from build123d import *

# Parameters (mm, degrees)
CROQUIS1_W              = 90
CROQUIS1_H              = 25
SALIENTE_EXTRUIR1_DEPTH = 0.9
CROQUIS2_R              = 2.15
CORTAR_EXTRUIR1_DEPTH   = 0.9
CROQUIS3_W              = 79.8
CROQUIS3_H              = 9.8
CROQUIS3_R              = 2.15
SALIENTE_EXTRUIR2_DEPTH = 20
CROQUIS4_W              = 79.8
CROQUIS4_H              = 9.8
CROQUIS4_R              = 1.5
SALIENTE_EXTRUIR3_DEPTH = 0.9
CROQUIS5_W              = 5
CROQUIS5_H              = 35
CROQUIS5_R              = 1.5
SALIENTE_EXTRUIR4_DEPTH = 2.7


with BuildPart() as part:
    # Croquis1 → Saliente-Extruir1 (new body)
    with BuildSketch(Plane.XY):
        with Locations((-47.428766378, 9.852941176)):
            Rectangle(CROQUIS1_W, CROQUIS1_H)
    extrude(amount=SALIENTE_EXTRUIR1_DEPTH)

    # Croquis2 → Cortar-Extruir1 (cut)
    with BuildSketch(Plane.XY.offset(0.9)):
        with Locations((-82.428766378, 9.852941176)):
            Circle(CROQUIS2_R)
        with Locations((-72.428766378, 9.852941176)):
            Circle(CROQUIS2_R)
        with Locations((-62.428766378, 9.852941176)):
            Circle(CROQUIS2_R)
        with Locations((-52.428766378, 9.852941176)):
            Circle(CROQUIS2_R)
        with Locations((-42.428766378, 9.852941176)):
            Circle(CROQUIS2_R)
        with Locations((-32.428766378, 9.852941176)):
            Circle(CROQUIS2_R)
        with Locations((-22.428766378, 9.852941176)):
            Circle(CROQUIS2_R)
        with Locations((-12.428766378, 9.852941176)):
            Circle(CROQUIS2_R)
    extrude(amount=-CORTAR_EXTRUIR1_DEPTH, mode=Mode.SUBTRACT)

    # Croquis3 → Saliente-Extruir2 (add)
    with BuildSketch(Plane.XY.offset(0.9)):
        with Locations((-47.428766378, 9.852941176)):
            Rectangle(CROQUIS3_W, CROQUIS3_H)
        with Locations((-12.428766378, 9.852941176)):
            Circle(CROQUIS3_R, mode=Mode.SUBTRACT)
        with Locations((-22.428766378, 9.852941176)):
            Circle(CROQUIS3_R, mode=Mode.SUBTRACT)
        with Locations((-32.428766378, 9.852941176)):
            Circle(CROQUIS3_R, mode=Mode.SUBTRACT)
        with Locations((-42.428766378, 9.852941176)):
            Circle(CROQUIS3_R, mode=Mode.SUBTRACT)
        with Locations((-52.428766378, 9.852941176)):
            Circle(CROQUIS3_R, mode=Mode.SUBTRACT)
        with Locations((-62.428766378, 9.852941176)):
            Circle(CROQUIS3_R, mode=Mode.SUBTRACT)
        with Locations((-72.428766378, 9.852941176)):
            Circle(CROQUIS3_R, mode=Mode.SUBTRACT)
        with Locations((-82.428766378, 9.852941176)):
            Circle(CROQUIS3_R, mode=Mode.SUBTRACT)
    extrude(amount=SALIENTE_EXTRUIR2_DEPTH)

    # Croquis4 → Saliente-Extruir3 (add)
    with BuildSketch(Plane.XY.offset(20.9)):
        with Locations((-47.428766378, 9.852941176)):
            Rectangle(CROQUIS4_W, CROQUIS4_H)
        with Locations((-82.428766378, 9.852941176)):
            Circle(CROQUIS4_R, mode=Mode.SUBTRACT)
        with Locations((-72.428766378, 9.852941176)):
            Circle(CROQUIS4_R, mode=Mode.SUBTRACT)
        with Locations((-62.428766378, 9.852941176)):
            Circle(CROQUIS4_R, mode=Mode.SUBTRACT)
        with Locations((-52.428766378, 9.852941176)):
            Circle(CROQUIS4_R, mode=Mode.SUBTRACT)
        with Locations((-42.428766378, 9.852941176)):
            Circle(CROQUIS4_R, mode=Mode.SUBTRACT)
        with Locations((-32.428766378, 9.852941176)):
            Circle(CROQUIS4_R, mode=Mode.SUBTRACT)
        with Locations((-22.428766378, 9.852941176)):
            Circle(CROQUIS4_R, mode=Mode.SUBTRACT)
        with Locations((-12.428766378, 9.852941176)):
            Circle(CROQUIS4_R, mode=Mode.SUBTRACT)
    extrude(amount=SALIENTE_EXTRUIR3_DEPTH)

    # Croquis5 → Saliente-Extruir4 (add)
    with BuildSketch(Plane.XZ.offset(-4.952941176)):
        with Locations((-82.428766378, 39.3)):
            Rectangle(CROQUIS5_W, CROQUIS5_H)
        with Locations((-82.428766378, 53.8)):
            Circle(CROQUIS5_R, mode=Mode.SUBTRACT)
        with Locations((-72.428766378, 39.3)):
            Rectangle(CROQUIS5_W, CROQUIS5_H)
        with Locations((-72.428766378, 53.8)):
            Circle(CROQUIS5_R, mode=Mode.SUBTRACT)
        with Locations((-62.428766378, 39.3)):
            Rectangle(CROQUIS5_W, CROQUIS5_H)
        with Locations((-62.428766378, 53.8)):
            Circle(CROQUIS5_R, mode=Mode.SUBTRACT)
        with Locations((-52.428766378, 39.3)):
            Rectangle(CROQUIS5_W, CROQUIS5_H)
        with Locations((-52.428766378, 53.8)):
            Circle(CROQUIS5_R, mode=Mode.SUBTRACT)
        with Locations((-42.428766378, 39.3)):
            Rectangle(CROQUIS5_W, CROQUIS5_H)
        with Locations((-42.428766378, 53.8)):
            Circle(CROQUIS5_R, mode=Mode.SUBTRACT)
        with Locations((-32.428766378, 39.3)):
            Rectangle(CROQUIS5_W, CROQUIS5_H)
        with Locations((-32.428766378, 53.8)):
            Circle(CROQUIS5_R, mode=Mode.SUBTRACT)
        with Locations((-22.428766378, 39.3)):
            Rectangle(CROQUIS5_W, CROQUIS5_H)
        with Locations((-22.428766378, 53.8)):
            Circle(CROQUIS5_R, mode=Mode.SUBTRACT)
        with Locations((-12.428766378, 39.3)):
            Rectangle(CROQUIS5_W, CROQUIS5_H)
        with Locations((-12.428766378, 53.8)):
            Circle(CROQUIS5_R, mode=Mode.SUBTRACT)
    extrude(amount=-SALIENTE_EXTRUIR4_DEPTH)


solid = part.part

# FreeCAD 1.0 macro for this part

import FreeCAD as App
import Part
import Sketcher

V = App.Vector
Q = App.Units.Quantity

doc = App.newDocument("Part")
body = doc.addObject("PartDesign::Body", "Body")

# Sketch on XY plane
sketch1 = body.newObject("Sketcher::SketchObject", "Sketch")
sketch1.AttachmentSupport = (doc.getObject("XY_Plane"), [""])
sketch1.MapMode = "FlatFace"
sketch1.addGeometry([
    Part.LineSegment(V(-92, 22, 0), V(-92, -3, 0)),
    Part.LineSegment(V(-92, -3, 0), V(-2, -3, 0)),
    Part.LineSegment(V(-2, -3, 0), V(-2, 22, 0)),
    Part.LineSegment(V(-2, 22, 0), V(-92, 22, 0)),
], False)
sketch1.addConstraint([
    Sketcher.Constraint("Coincident", 0, 2, 1, 1),
    Sketcher.Constraint("Coincident", 1, 2, 2, 1),
    Sketcher.Constraint("Coincident", 2, 2, 3, 1),
    Sketcher.Constraint("Coincident", 3, 2, 0, 1),
    Sketcher.Constraint("Vertical", 0),
    Sketcher.Constraint("Horizontal", 1),
    Sketcher.Constraint("Vertical", 2),
    Sketcher.Constraint("Horizontal", 3),
    Sketcher.Constraint("DistanceX", 1, 1, 1, 2, Q("90 mm")),
    Sketcher.Constraint("DistanceY", 0, 2, 0, 1, Q("25 mm")),
    Sketcher.Constraint("DistanceY", 0, 2, -1, 1, Q("2.647059 mm")),
    Sketcher.Constraint("DistanceX", 0, 2, -1, 1, Q("92.428766 mm")),
])
pad1 = body.newObject("PartDesign::Pad", "Pad")
pad1.Profile = sketch1
pad1.Length = 0.9

# Sketch on XY plane
sketch2 = body.newObject("Sketcher::SketchObject", "Sketch001")
sketch2.AttachmentSupport = (doc.getObject("XY_Plane"), [""])
sketch2.MapMode = "FlatFace"
sketch2.AttachmentOffset = App.Placement(V(0, 0, 0.9), App.Rotation())
sketch2.addGeometry([
    Part.Circle(V(-82.4, 9.9, 0), V(0, 0, 1), 2.1),  # 0
    Part.Circle(V(-72.4, 9.9, 0), V(0, 0, 1), 2.1),  # 1
    Part.Circle(V(-62.4, 9.9, 0), V(0, 0, 1), 2.1),  # 2
    Part.Circle(V(-52.4, 9.9, 0), V(0, 0, 1), 2.1),  # 3
    Part.Circle(V(-42.4, 9.9, 0), V(0, 0, 1), 2.1),  # 4
    Part.Circle(V(-32.4, 9.9, 0), V(0, 0, 1), 2.1),  # 5
    Part.Circle(V(-22.4, 9.9, 0), V(0, 0, 1), 2.1),  # 6
    Part.Circle(V(-12.4, 9.9, 0), V(0, 0, 1), 2.1),  # 7
], False)
sketch2.addConstraint([
    Sketcher.Constraint("Equal", 0, 1),
    Sketcher.Constraint("Equal", 1, 2),
    Sketcher.Constraint("Equal", 2, 3),
    Sketcher.Constraint("Equal", 3, 4),
    Sketcher.Constraint("Equal", 4, 5),
    Sketcher.Constraint("Equal", 5, 6),
    Sketcher.Constraint("Equal", 6, 7),
    Sketcher.Constraint("Horizontal", 0, 3, 1, 3),
    Sketcher.Constraint("Horizontal", 1, 3, 2, 3),
    Sketcher.Constraint("Horizontal", 2, 3, 3, 3),
    Sketcher.Constraint("Horizontal", 3, 3, 4, 3),
    Sketcher.Constraint("Horizontal", 4, 3, 5, 3),
    Sketcher.Constraint("Horizontal", 5, 3, 6, 3),
    Sketcher.Constraint("Horizontal", 6, 3, 7, 3),
    Sketcher.Constraint("Diameter", 0, Q("4.3 mm")),
    Sketcher.Constraint("DistanceX", 0, 3, 1, 3, Q("10 mm")),
    Sketcher.Constraint("DistanceX", 1, 3, 2, 3, Q("10 mm")),
    Sketcher.Constraint("DistanceX", 2, 3, 3, 3, Q("10 mm")),
    Sketcher.Constraint("DistanceX", 3, 3, 4, 3, Q("10 mm")),
    Sketcher.Constraint("DistanceX", 4, 3, 5, 3, Q("10 mm")),
    Sketcher.Constraint("DistanceX", 5, 3, 6, 3, Q("10 mm")),
    Sketcher.Constraint("DistanceX", 6, 3, 7, 3, Q("10 mm")),
    Sketcher.Constraint("DistanceY", -1, 1, 0, 3, Q("9.852941 mm")),
    Sketcher.Constraint("DistanceX", 0, 3, -1, 1, Q("82.428766 mm")),
])
pocket1 = body.newObject("PartDesign::Pocket", "Pocket")
pocket1.Profile = sketch2
pocket1.Length = 0.9

# Sketch on XY plane
sketch3 = body.newObject("Sketcher::SketchObject", "Sketch002")
sketch3.AttachmentSupport = (doc.getObject("XY_Plane"), [""])
sketch3.MapMode = "FlatFace"
sketch3.AttachmentOffset = App.Placement(V(0, 0, 0.9), App.Rotation())
sketch3.addGeometry([
    Part.LineSegment(V(-87.3, 14.8, 0), V(-87.3, 5, 0)),  # 0
    Part.LineSegment(V(-87.3, 5, 0), V(-7.5, 5, 0)),  # 1
    Part.LineSegment(V(-7.5, 5, 0), V(-7.5, 14.8, 0)),  # 2
    Part.LineSegment(V(-7.5, 14.8, 0), V(-87.3, 14.8, 0)),  # 3
    Part.Circle(V(-82.4, 9.9, 0), V(0, 0, 1), 2.1),  # 4
    Part.Circle(V(-72.4, 9.9, 0), V(0, 0, 1), 2.1),  # 5
    Part.Circle(V(-62.4, 9.9, 0), V(0, 0, 1), 2.1),  # 6
    Part.Circle(V(-52.4, 9.9, 0), V(0, 0, 1), 2.1),  # 7
    Part.Circle(V(-42.4, 9.9, 0), V(0, 0, 1), 2.1),  # 8
    Part.Circle(V(-32.4, 9.9, 0), V(0, 0, 1), 2.1),  # 9
    Part.Circle(V(-22.4, 9.9, 0), V(0, 0, 1), 2.1),  # 10
    Part.Circle(V(-12.4, 9.9, 0), V(0, 0, 1), 2.1),  # 11
], False)
sketch3.addConstraint([
    Sketcher.Constraint("Coincident", 0, 2, 1, 1),
    Sketcher.Constraint("Coincident", 1, 2, 2, 1),
    Sketcher.Constraint("Coincident", 2, 2, 3, 1),
    Sketcher.Constraint("Coincident", 3, 2, 0, 1),
    Sketcher.Constraint("Vertical", 0),
    Sketcher.Constraint("Horizontal", 1),
    Sketcher.Constraint("Vertical", 2),
    Sketcher.Constraint("Horizontal", 3),
    Sketcher.Constraint("Equal", 4, 5),
    Sketcher.Constraint("Equal", 5, 6),
    Sketcher.Constraint("Equal", 6, 7),
    Sketcher.Constraint("Equal", 7, 8),
    Sketcher.Constraint("Equal", 8, 9),
    Sketcher.Constraint("Equal", 9, 10),
    Sketcher.Constraint("Equal", 10, 11),
    Sketcher.Constraint("Horizontal", 4, 3, 5, 3),
    Sketcher.Constraint("Horizontal", 5, 3, 6, 3),
    Sketcher.Constraint("Horizontal", 6, 3, 7, 3),
    Sketcher.Constraint("Horizontal", 7, 3, 8, 3),
    Sketcher.Constraint("Horizontal", 8, 3, 9, 3),
    Sketcher.Constraint("Horizontal", 9, 3, 10, 3),
    Sketcher.Constraint("Horizontal", 10, 3, 11, 3),
    Sketcher.Constraint("Diameter", 4, Q("4.3 mm")),
    Sketcher.Constraint("DistanceX", 1, 1, 1, 2, Q("79.8 mm")),
    Sketcher.Constraint("DistanceY", 0, 2, 0, 1, Q("9.8 mm")),
    Sketcher.Constraint("DistanceX", 4, 3, 5, 3, Q("10 mm")),
    Sketcher.Constraint("DistanceX", 5, 3, 6, 3, Q("10 mm")),
    Sketcher.Constraint("DistanceX", 6, 3, 7, 3, Q("10 mm")),
    Sketcher.Constraint("DistanceX", 7, 3, 8, 3, Q("10 mm")),
    Sketcher.Constraint("DistanceX", 8, 3, 9, 3, Q("10 mm")),
    Sketcher.Constraint("DistanceX", 9, 3, 10, 3, Q("10 mm")),
    Sketcher.Constraint("DistanceX", 10, 3, 11, 3, Q("10 mm")),
    Sketcher.Constraint("DistanceX", 0, 2, 4, 3, Q("4.9 mm")),
    Sketcher.Constraint("DistanceY", 0, 2, 4, 3, Q("4.9 mm")),
    Sketcher.Constraint("DistanceY", -1, 1, 4, 3, Q("9.852941 mm")),
    Sketcher.Constraint("DistanceX", 4, 3, -1, 1, Q("82.428766 mm")),
])
pad2 = body.newObject("PartDesign::Pad", "Pad001")
pad2.Profile = sketch3
pad2.Length = 20

# Sketch on XY plane
sketch4 = body.newObject("Sketcher::SketchObject", "Sketch003")
sketch4.AttachmentSupport = (doc.getObject("XY_Plane"), [""])
sketch4.MapMode = "FlatFace"
sketch4.AttachmentOffset = App.Placement(V(0, 0, 20.9), App.Rotation())
sketch4.addGeometry([
    Part.LineSegment(V(-87.3, 14.8, 0), V(-87.3, 5, 0)),  # 0
    Part.LineSegment(V(-87.3, 5, 0), V(-7.5, 5, 0)),  # 1
    Part.LineSegment(V(-7.5, 5, 0), V(-7.5, 14.8, 0)),  # 2
    Part.LineSegment(V(-7.5, 14.8, 0), V(-87.3, 14.8, 0)),  # 3
    Part.Circle(V(-82.4, 9.9, 0), V(0, 0, 1), 1.5),  # 4
    Part.Circle(V(-72.4, 9.9, 0), V(0, 0, 1), 1.5),  # 5
    Part.Circle(V(-62.4, 9.9, 0), V(0, 0, 1), 1.5),  # 6
    Part.Circle(V(-52.4, 9.9, 0), V(0, 0, 1), 1.5),  # 7
    Part.Circle(V(-42.4, 9.9, 0), V(0, 0, 1), 1.5),  # 8
    Part.Circle(V(-32.4, 9.9, 0), V(0, 0, 1), 1.5),  # 9
    Part.Circle(V(-22.4, 9.9, 0), V(0, 0, 1), 1.5),  # 10
    Part.Circle(V(-12.4, 9.9, 0), V(0, 0, 1), 1.5),  # 11
], False)
sketch4.addConstraint([
    Sketcher.Constraint("Coincident", 0, 2, 1, 1),
    Sketcher.Constraint("Coincident", 1, 2, 2, 1),
    Sketcher.Constraint("Coincident", 2, 2, 3, 1),
    Sketcher.Constraint("Coincident", 3, 2, 0, 1),
    Sketcher.Constraint("Vertical", 0),
    Sketcher.Constraint("Horizontal", 1),
    Sketcher.Constraint("Vertical", 2),
    Sketcher.Constraint("Horizontal", 3),
    Sketcher.Constraint("Equal", 4, 5),
    Sketcher.Constraint("Equal", 5, 6),
    Sketcher.Constraint("Equal", 6, 7),
    Sketcher.Constraint("Equal", 7, 8),
    Sketcher.Constraint("Equal", 8, 9),
    Sketcher.Constraint("Equal", 9, 10),
    Sketcher.Constraint("Equal", 10, 11),
    Sketcher.Constraint("Horizontal", 4, 3, 5, 3),
    Sketcher.Constraint("Horizontal", 5, 3, 6, 3),
    Sketcher.Constraint("Horizontal", 6, 3, 7, 3),
    Sketcher.Constraint("Horizontal", 7, 3, 8, 3),
    Sketcher.Constraint("Horizontal", 8, 3, 9, 3),
    Sketcher.Constraint("Horizontal", 9, 3, 10, 3),
    Sketcher.Constraint("Horizontal", 10, 3, 11, 3),
    Sketcher.Constraint("Diameter", 4, Q("3 mm")),
    Sketcher.Constraint("DistanceX", 1, 1, 1, 2, Q("79.8 mm")),
    Sketcher.Constraint("DistanceY", 0, 2, 0, 1, Q("9.8 mm")),
    Sketcher.Constraint("DistanceX", 4, 3, 5, 3, Q("10 mm")),
    Sketcher.Constraint("DistanceX", 5, 3, 6, 3, Q("10 mm")),
    Sketcher.Constraint("DistanceX", 6, 3, 7, 3, Q("10 mm")),
    Sketcher.Constraint("DistanceX", 7, 3, 8, 3, Q("10 mm")),
    Sketcher.Constraint("DistanceX", 8, 3, 9, 3, Q("10 mm")),
    Sketcher.Constraint("DistanceX", 9, 3, 10, 3, Q("10 mm")),
    Sketcher.Constraint("DistanceX", 10, 3, 11, 3, Q("10 mm")),
    Sketcher.Constraint("DistanceX", 0, 2, 4, 3, Q("4.9 mm")),
    Sketcher.Constraint("DistanceY", 0, 2, 4, 3, Q("4.9 mm")),
    Sketcher.Constraint("DistanceY", -1, 1, 4, 3, Q("9.852941 mm")),
    Sketcher.Constraint("DistanceX", 4, 3, -1, 1, Q("82.428766 mm")),
])
pad3 = body.newObject("PartDesign::Pad", "Pad002")
pad3.Profile = sketch4
pad3.Length = 0.9

# Sketch on XZ plane
sketch5 = body.newObject("Sketcher::SketchObject", "Sketch004")
sketch5.AttachmentSupport = (doc.getObject("XZ_Plane"), [""])
sketch5.MapMode = "FlatFace"
sketch5.AttachmentOffset = App.Placement(V(0, 0, -4.952941), App.Rotation())
sketch5.addGeometry([
    Part.LineSegment(V(-84.9, 56.8, 0), V(-84.9, 21.8, 0)),  # 0
    Part.LineSegment(V(-84.9, 21.8, 0), V(-79.9, 21.8, 0)),  # 1
    Part.LineSegment(V(-79.9, 21.8, 0), V(-79.9, 56.8, 0)),  # 2
    Part.LineSegment(V(-79.9, 56.8, 0), V(-84.9, 56.8, 0)),  # 3
    Part.Circle(V(-82.4, 53.8, 0), V(0, 0, 1), 1.5),  # 4
    Part.LineSegment(V(-74.9, 56.8, 0), V(-74.9, 21.8, 0)),  # 5
    Part.LineSegment(V(-74.9, 21.8, 0), V(-69.9, 21.8, 0)),  # 6
    Part.LineSegment(V(-69.9, 21.8, 0), V(-69.9, 56.8, 0)),  # 7
    Part.LineSegment(V(-69.9, 56.8, 0), V(-74.9, 56.8, 0)),  # 8
    Part.Circle(V(-72.4, 53.8, 0), V(0, 0, 1), 1.5),  # 9
    Part.LineSegment(V(-64.9, 56.8, 0), V(-64.9, 21.8, 0)),  # 10
    Part.LineSegment(V(-64.9, 21.8, 0), V(-59.9, 21.8, 0)),  # 11
    Part.LineSegment(V(-59.9, 21.8, 0), V(-59.9, 56.8, 0)),  # 12
    Part.LineSegment(V(-59.9, 56.8, 0), V(-64.9, 56.8, 0)),  # 13
    Part.Circle(V(-62.4, 53.8, 0), V(0, 0, 1), 1.5),  # 14
    Part.LineSegment(V(-54.9, 56.8, 0), V(-54.9, 21.8, 0)),  # 15
    Part.LineSegment(V(-54.9, 21.8, 0), V(-49.9, 21.8, 0)),  # 16
    Part.LineSegment(V(-49.9, 21.8, 0), V(-49.9, 56.8, 0)),  # 17
    Part.LineSegment(V(-49.9, 56.8, 0), V(-54.9, 56.8, 0)),  # 18
    Part.Circle(V(-52.4, 53.8, 0), V(0, 0, 1), 1.5),  # 19
    Part.LineSegment(V(-44.9, 56.8, 0), V(-44.9, 21.8, 0)),  # 20
    Part.LineSegment(V(-44.9, 21.8, 0), V(-39.9, 21.8, 0)),  # 21
    Part.LineSegment(V(-39.9, 21.8, 0), V(-39.9, 56.8, 0)),  # 22
    Part.LineSegment(V(-39.9, 56.8, 0), V(-44.9, 56.8, 0)),  # 23
    Part.Circle(V(-42.4, 53.8, 0), V(0, 0, 1), 1.5),  # 24
    Part.LineSegment(V(-34.9, 56.8, 0), V(-34.9, 21.8, 0)),  # 25
    Part.LineSegment(V(-34.9, 21.8, 0), V(-29.9, 21.8, 0)),  # 26
    Part.LineSegment(V(-29.9, 21.8, 0), V(-29.9, 56.8, 0)),  # 27
    Part.LineSegment(V(-29.9, 56.8, 0), V(-34.9, 56.8, 0)),  # 28
    Part.Circle(V(-32.4, 53.8, 0), V(0, 0, 1), 1.5),  # 29
    Part.LineSegment(V(-24.9, 56.8, 0), V(-24.9, 21.8, 0)),  # 30
    Part.LineSegment(V(-24.9, 21.8, 0), V(-19.9, 21.8, 0)),  # 31
    Part.LineSegment(V(-19.9, 21.8, 0), V(-19.9, 56.8, 0)),  # 32
    Part.LineSegment(V(-19.9, 56.8, 0), V(-24.9, 56.8, 0)),  # 33
    Part.Circle(V(-22.4, 53.8, 0), V(0, 0, 1), 1.5),  # 34
    Part.LineSegment(V(-14.9, 56.8, 0), V(-14.9, 21.8, 0)),  # 35
    Part.LineSegment(V(-14.9, 21.8, 0), V(-9.9, 21.8, 0)),  # 36
    Part.LineSegment(V(-9.9, 21.8, 0), V(-9.9, 56.8, 0)),  # 37
    Part.LineSegment(V(-9.9, 56.8, 0), V(-14.9, 56.8, 0)),  # 38
    Part.Circle(V(-12.4, 53.8, 0), V(0, 0, 1), 1.5),  # 39
], False)
sketch5.addConstraint([
    Sketcher.Constraint("Coincident", 0, 2, 1, 1),
    Sketcher.Constraint("Coincident", 1, 2, 2, 1),
    Sketcher.Constraint("Coincident", 2, 2, 3, 1),
    Sketcher.Constraint("Coincident", 3, 2, 0, 1),
    Sketcher.Constraint("Coincident", 5, 2, 6, 1),
    Sketcher.Constraint("Coincident", 6, 2, 7, 1),
    Sketcher.Constraint("Coincident", 7, 2, 8, 1),
    Sketcher.Constraint("Coincident", 8, 2, 5, 1),
    Sketcher.Constraint("Coincident", 10, 2, 11, 1),
    Sketcher.Constraint("Coincident", 11, 2, 12, 1),
    Sketcher.Constraint("Coincident", 12, 2, 13, 1),
    Sketcher.Constraint("Coincident", 13, 2, 10, 1),
    Sketcher.Constraint("Coincident", 15, 2, 16, 1),
    Sketcher.Constraint("Coincident", 16, 2, 17, 1),
    Sketcher.Constraint("Coincident", 17, 2, 18, 1),
    Sketcher.Constraint("Coincident", 18, 2, 15, 1),
    Sketcher.Constraint("Coincident", 20, 2, 21, 1),
    Sketcher.Constraint("Coincident", 21, 2, 22, 1),
    Sketcher.Constraint("Coincident", 22, 2, 23, 1),
    Sketcher.Constraint("Coincident", 23, 2, 20, 1),
    Sketcher.Constraint("Coincident", 25, 2, 26, 1),
    Sketcher.Constraint("Coincident", 26, 2, 27, 1),
    Sketcher.Constraint("Coincident", 27, 2, 28, 1),
    Sketcher.Constraint("Coincident", 28, 2, 25, 1),
    Sketcher.Constraint("Coincident", 30, 2, 31, 1),
    Sketcher.Constraint("Coincident", 31, 2, 32, 1),
    Sketcher.Constraint("Coincident", 32, 2, 33, 1),
    Sketcher.Constraint("Coincident", 33, 2, 30, 1),
    Sketcher.Constraint("Coincident", 35, 2, 36, 1),
    Sketcher.Constraint("Coincident", 36, 2, 37, 1),
    Sketcher.Constraint("Coincident", 37, 2, 38, 1),
    Sketcher.Constraint("Coincident", 38, 2, 35, 1),
    Sketcher.Constraint("Vertical", 0),
    Sketcher.Constraint("Horizontal", 1),
    Sketcher.Constraint("Vertical", 2),
    Sketcher.Constraint("Horizontal", 3),
    Sketcher.Constraint("Vertical", 5),
    Sketcher.Constraint("Horizontal", 6),
    Sketcher.Constraint("Vertical", 7),
    Sketcher.Constraint("Horizontal", 8),
    Sketcher.Constraint("Vertical", 10),
    Sketcher.Constraint("Horizontal", 11),
    Sketcher.Constraint("Vertical", 12),
    Sketcher.Constraint("Horizontal", 13),
    Sketcher.Constraint("Vertical", 15),
    Sketcher.Constraint("Horizontal", 16),
    Sketcher.Constraint("Vertical", 17),
    Sketcher.Constraint("Horizontal", 18),
    Sketcher.Constraint("Vertical", 20),
    Sketcher.Constraint("Horizontal", 21),
    Sketcher.Constraint("Vertical", 22),
    Sketcher.Constraint("Horizontal", 23),
    Sketcher.Constraint("Vertical", 25),
    Sketcher.Constraint("Horizontal", 26),
    Sketcher.Constraint("Vertical", 27),
    Sketcher.Constraint("Horizontal", 28),
    Sketcher.Constraint("Vertical", 30),
    Sketcher.Constraint("Horizontal", 31),
    Sketcher.Constraint("Vertical", 32),
    Sketcher.Constraint("Horizontal", 33),
    Sketcher.Constraint("Vertical", 35),
    Sketcher.Constraint("Horizontal", 36),
    Sketcher.Constraint("Vertical", 37),
    Sketcher.Constraint("Horizontal", 38),
    Sketcher.Constraint("Equal", 4, 9),
    Sketcher.Constraint("Equal", 9, 14),
    Sketcher.Constraint("Equal", 14, 19),
    Sketcher.Constraint("Equal", 19, 24),
    Sketcher.Constraint("Equal", 24, 29),
    Sketcher.Constraint("Equal", 29, 34),
    Sketcher.Constraint("Equal", 34, 39),
    Sketcher.Constraint("Horizontal", 4, 3, 9, 3),
    Sketcher.Constraint("Horizontal", 9, 3, 14, 3),
    Sketcher.Constraint("Horizontal", 14, 3, 19, 3),
    Sketcher.Constraint("Horizontal", 19, 3, 24, 3),
    Sketcher.Constraint("Horizontal", 24, 3, 29, 3),
    Sketcher.Constraint("Horizontal", 29, 3, 34, 3),
    Sketcher.Constraint("Horizontal", 34, 3, 39, 3),
    Sketcher.Constraint("Horizontal", 1, 2, 5, 2),
    Sketcher.Constraint("Horizontal", 3, 2, 7, 2),
    Sketcher.Constraint("Horizontal", 6, 2, 10, 2),
    Sketcher.Constraint("Horizontal", 8, 2, 12, 2),
    Sketcher.Constraint("Horizontal", 11, 2, 15, 2),
    Sketcher.Constraint("Horizontal", 13, 2, 17, 2),
    Sketcher.Constraint("Horizontal", 16, 2, 20, 2),
    Sketcher.Constraint("Horizontal", 18, 2, 22, 2),
    Sketcher.Constraint("Horizontal", 21, 2, 25, 2),
    Sketcher.Constraint("Horizontal", 23, 2, 27, 2),
    Sketcher.Constraint("Horizontal", 26, 2, 30, 2),
    Sketcher.Constraint("Horizontal", 28, 2, 32, 2),
    Sketcher.Constraint("Horizontal", 31, 2, 35, 2),
    Sketcher.Constraint("Horizontal", 33, 2, 37, 2),
    Sketcher.Constraint("Equal", 3, 6),
    Sketcher.Constraint("Equal", 8, 11),
    Sketcher.Constraint("Equal", 13, 16),
    Sketcher.Constraint("Equal", 18, 21),
    Sketcher.Constraint("Equal", 23, 26),
    Sketcher.Constraint("Equal", 28, 31),
    Sketcher.Constraint("Equal", 33, 36),
    Sketcher.Constraint("Diameter", 4, Q("3 mm")),
    Sketcher.Constraint("DistanceX", 1, 1, 1, 2, Q("5 mm")),
    Sketcher.Constraint("DistanceY", 0, 2, 0, 1, Q("35 mm")),
    Sketcher.Constraint("DistanceX", 4, 3, 9, 3, Q("10 mm")),
    Sketcher.Constraint("DistanceX", 9, 3, 14, 3, Q("10 mm")),
    Sketcher.Constraint("DistanceX", 14, 3, 19, 3, Q("10 mm")),
    Sketcher.Constraint("DistanceX", 19, 3, 24, 3, Q("10 mm")),
    Sketcher.Constraint("DistanceX", 24, 3, 29, 3, Q("10 mm")),
    Sketcher.Constraint("DistanceX", 29, 3, 34, 3, Q("10 mm")),
    Sketcher.Constraint("DistanceX", 34, 3, 39, 3, Q("10 mm")),
    Sketcher.Constraint("DistanceY", 0, 2, 4, 3, Q("32 mm")),
    Sketcher.Constraint("DistanceX", 1, 2, 5, 2, Q("5 mm")),
    Sketcher.Constraint("DistanceX", 6, 2, 10, 2, Q("5 mm")),
    Sketcher.Constraint("DistanceX", 11, 2, 15, 2, Q("5 mm")),
    Sketcher.Constraint("DistanceX", 16, 2, 20, 2, Q("5 mm")),
    Sketcher.Constraint("DistanceX", 21, 2, 25, 2, Q("5 mm")),
    Sketcher.Constraint("DistanceX", 26, 2, 30, 2, Q("5 mm")),
    Sketcher.Constraint("DistanceX", 31, 2, 35, 2, Q("5 mm")),
    Sketcher.Constraint("DistanceY", -1, 1, 4, 3, Q("53.8 mm")),
    Sketcher.Constraint("DistanceX", 0, 2, 4, 3, Q("2.5 mm")),
    Sketcher.Constraint("DistanceX", 4, 3, -1, 1, Q("82.428766 mm")),
])
pad4 = body.newObject("PartDesign::Pad", "Pad003")
pad4.Profile = sketch5
pad4.Length = 2.7
pad4.Reversed = True

doc.recompute()
